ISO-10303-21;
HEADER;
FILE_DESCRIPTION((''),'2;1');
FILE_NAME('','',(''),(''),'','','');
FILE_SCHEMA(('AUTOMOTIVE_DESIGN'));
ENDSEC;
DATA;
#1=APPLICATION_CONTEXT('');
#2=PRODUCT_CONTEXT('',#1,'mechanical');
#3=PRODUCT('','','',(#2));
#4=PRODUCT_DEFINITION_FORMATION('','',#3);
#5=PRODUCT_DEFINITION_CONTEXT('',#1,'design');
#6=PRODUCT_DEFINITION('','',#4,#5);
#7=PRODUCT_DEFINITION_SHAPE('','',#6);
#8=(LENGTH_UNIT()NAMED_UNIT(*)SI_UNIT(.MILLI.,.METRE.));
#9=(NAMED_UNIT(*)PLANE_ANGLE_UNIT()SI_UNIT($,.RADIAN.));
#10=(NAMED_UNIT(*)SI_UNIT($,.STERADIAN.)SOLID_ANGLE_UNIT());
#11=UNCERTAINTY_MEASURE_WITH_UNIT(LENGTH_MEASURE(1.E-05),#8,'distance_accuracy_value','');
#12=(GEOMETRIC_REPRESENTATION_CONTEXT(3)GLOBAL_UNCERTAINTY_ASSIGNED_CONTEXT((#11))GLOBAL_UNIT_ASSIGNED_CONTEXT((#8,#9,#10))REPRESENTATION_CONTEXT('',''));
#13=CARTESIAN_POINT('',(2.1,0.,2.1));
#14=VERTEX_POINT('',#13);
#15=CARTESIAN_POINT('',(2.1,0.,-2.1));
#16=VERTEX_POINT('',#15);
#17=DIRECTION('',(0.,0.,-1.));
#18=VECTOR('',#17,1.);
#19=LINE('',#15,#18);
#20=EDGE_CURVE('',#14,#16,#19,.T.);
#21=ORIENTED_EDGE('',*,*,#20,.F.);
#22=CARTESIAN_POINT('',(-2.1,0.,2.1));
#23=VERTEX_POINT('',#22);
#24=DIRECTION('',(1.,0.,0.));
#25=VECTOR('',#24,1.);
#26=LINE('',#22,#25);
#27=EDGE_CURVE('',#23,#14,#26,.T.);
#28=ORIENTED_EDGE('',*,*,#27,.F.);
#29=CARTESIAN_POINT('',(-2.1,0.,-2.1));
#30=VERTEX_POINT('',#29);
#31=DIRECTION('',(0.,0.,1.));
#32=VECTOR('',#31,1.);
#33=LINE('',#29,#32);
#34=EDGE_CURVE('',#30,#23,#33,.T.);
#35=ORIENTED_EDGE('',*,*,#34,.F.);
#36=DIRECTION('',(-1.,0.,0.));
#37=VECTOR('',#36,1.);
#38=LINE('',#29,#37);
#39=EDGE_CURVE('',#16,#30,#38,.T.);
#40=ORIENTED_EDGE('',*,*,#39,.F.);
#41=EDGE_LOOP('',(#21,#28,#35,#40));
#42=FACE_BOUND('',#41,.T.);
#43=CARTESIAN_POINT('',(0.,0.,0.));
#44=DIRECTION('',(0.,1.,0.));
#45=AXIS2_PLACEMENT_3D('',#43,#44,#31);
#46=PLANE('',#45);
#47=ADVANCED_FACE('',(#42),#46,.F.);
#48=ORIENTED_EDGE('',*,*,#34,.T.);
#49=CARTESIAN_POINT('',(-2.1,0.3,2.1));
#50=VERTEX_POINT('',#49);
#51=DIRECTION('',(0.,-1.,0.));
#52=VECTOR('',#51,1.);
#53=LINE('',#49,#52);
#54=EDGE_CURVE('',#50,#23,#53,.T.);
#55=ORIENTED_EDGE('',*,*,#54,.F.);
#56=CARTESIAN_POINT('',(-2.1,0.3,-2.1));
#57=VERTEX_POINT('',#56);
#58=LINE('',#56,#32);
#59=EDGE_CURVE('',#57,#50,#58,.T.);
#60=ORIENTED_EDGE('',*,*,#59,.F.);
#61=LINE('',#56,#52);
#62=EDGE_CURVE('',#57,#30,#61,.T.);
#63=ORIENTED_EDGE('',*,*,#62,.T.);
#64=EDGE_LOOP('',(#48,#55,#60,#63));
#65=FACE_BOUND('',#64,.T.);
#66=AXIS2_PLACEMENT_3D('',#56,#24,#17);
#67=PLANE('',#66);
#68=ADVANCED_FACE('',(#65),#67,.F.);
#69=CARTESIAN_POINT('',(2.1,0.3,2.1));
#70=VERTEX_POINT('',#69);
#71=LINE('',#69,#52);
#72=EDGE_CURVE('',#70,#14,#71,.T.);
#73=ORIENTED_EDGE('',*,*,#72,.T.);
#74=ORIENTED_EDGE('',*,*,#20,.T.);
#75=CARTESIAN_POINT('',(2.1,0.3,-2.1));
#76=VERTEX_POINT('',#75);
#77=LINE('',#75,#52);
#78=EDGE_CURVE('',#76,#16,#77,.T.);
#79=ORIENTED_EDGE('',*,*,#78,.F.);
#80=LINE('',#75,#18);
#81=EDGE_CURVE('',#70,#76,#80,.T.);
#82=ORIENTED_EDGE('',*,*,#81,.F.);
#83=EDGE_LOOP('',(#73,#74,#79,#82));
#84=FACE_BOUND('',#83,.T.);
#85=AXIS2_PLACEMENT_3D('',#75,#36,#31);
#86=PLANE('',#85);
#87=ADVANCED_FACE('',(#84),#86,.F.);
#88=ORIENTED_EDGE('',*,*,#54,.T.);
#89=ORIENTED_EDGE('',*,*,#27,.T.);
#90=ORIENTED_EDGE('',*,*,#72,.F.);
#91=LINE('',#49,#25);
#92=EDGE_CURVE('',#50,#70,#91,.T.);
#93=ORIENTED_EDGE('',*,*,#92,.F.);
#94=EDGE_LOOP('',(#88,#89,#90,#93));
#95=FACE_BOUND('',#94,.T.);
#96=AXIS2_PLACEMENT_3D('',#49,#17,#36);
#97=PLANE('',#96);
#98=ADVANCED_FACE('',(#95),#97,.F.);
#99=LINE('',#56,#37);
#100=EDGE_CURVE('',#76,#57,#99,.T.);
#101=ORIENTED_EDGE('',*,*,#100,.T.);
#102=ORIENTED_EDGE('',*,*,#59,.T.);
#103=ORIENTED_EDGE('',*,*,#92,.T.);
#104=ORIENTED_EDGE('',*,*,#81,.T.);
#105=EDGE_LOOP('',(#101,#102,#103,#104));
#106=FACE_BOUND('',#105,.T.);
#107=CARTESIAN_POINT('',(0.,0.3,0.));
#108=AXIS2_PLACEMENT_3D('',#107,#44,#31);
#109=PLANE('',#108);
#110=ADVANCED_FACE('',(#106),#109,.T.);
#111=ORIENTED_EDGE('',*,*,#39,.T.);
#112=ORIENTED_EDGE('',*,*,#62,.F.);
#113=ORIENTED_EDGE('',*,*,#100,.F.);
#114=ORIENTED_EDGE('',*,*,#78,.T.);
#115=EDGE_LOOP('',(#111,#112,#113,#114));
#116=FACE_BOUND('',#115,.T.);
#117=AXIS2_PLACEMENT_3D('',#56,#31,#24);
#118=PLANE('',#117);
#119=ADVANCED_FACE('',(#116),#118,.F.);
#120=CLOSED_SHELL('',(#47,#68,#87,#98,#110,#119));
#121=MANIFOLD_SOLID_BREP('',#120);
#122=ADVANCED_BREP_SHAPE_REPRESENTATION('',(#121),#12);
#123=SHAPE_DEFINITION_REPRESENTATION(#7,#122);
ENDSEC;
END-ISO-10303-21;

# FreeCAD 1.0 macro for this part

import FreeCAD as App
import Part
import Sketcher
from FreeCAD import Vector
Q = App.Units.Quantity


def add_polygon(sketch, points):
    """Adds a closed chain of lines whose ends are joined by coincident constraints."""
    first, n = sketch.GeometryCount, len(points)
    for a, b in zip(points, points[1:] + points[:1]):
        sketch.addGeometry(Part.LineSegment(App.Vector(*a, 0), App.Vector(*b, 0)), False)
    for i in range(n):
        sketch.addConstraint(Sketcher.Constraint("Coincident", first + i, 2, first + (i + 1) % n, 1))

doc = App.newDocument("Part")
body = doc.addObject("PartDesign::Body", "Body")

# Sketch on XZ plane
sketch1 = body.newObject("Sketcher::SketchObject", "Sketch")
sketch1.AttachmentSupport = (doc.getObject("XZ_Plane"), [""])
sketch1.MapMode = "FlatFace"
add_polygon(sketch1, [(-2.1, -2.1), (-2.1, 2.1), (2.1, 2.1), (2.1, -2.1)])  # lines 0-3
sketch1.addConstraint([
    Sketcher.Constraint("Vertical", 0),
    Sketcher.Constraint("Horizontal", 1),
    Sketcher.Constraint("Vertical", 2),
    Sketcher.Constraint("Horizontal", 3),
    Sketcher.Constraint("Symmetric", 0, 2, 2, 2, -1, 1),
    Sketcher.Constraint("Equal", 3, 0),
    Sketcher.Constraint("DistanceX", 1, 1, 1, 2, Q("4.2 mm")),
])
pad1 = body.newObject("PartDesign::Pad", "Pad")
pad1.Profile = sketch1
pad1.Length = 0.3
pad1.Reversed = True

doc.recompute()
